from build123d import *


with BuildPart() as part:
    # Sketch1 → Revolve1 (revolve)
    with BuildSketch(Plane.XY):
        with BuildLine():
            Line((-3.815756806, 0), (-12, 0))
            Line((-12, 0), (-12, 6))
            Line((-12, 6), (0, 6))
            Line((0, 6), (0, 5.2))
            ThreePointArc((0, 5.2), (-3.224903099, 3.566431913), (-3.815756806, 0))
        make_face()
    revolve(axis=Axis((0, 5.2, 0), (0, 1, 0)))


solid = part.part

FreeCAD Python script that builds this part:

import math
import FreeCAD as App
import Part
import Sketcher

V = App.Vector

doc = App.newDocument("Part")
body = doc.addObject("PartDesign::Body", "Body")

sketch1 = doc.addObject("Sketcher::SketchObject", "Sketch")
body.addObject(sketch1)
sketch1.AttachmentSupport = (doc.XY_Plane, [""])
sketch1.MapMode = "FlatFace"
sketch1.addGeometry([
    Part.LineSegment(V(-12, 0, 0), V(-3.8, 0, 0)),
    Part.ArcOfCircle(Part.Circle(V(0, 1.2, 0), V(0, 0, 1), 4), math.radians(90), math.radians(197)),
    Part.LineSegment(V(0, 5.2, 0), V(0, 6, 0)),
    Part.LineSegment(V(0, 6, 0), V(-12, 6, 0)),
    Part.LineSegment(V(-12, 6, 0), V(-12, 0, 0)),
], False)
sketch1.addConstraint([
    Sketcher.Constraint("Coincident", 0, 2, 1, 2),
    Sketcher.Constraint("Coincident", 1, 1, 2, 1),
    Sketcher.Constraint("Coincident", 2, 2, 3, 1),
    Sketcher.Constraint("Coincident", 3, 2, 4, 1),
    Sketcher.Constraint("Coincident", 4, 2, 0, 1),
    Sketcher.Constraint("Horizontal", 0),
    Sketcher.Constraint("Vertical", 2),
    Sketcher.Constraint("Horizontal", 3),
    Sketcher.Constraint("Vertical", 4),
    Sketcher.Constraint("PointOnObject", 1, 3, -2),
    Sketcher.Constraint("PointOnObject", 0, 2, -1),
    Sketcher.Constraint("PointOnObject", 1, 1, -2),
    Sketcher.Constraint("Radius", 1, 4.0),
    Sketcher.Constraint("DistanceX", 3, 2, 3, 1, 12.0),
    Sketcher.Constraint("DistanceY", 4, 2, 4, 1, 6.0),
    Sketcher.Constraint("DistanceY", 2, 1, 2, 2, 0.8),
])
revolution = doc.addObject("PartDesign::Revolution", "Revolution")
body.addObject(revolution)
revolution.Profile = sketch1
revolution.ReferenceAxis = (sketch1, ["V_Axis"])
revolution.Angle = 360

doc.recompute()
